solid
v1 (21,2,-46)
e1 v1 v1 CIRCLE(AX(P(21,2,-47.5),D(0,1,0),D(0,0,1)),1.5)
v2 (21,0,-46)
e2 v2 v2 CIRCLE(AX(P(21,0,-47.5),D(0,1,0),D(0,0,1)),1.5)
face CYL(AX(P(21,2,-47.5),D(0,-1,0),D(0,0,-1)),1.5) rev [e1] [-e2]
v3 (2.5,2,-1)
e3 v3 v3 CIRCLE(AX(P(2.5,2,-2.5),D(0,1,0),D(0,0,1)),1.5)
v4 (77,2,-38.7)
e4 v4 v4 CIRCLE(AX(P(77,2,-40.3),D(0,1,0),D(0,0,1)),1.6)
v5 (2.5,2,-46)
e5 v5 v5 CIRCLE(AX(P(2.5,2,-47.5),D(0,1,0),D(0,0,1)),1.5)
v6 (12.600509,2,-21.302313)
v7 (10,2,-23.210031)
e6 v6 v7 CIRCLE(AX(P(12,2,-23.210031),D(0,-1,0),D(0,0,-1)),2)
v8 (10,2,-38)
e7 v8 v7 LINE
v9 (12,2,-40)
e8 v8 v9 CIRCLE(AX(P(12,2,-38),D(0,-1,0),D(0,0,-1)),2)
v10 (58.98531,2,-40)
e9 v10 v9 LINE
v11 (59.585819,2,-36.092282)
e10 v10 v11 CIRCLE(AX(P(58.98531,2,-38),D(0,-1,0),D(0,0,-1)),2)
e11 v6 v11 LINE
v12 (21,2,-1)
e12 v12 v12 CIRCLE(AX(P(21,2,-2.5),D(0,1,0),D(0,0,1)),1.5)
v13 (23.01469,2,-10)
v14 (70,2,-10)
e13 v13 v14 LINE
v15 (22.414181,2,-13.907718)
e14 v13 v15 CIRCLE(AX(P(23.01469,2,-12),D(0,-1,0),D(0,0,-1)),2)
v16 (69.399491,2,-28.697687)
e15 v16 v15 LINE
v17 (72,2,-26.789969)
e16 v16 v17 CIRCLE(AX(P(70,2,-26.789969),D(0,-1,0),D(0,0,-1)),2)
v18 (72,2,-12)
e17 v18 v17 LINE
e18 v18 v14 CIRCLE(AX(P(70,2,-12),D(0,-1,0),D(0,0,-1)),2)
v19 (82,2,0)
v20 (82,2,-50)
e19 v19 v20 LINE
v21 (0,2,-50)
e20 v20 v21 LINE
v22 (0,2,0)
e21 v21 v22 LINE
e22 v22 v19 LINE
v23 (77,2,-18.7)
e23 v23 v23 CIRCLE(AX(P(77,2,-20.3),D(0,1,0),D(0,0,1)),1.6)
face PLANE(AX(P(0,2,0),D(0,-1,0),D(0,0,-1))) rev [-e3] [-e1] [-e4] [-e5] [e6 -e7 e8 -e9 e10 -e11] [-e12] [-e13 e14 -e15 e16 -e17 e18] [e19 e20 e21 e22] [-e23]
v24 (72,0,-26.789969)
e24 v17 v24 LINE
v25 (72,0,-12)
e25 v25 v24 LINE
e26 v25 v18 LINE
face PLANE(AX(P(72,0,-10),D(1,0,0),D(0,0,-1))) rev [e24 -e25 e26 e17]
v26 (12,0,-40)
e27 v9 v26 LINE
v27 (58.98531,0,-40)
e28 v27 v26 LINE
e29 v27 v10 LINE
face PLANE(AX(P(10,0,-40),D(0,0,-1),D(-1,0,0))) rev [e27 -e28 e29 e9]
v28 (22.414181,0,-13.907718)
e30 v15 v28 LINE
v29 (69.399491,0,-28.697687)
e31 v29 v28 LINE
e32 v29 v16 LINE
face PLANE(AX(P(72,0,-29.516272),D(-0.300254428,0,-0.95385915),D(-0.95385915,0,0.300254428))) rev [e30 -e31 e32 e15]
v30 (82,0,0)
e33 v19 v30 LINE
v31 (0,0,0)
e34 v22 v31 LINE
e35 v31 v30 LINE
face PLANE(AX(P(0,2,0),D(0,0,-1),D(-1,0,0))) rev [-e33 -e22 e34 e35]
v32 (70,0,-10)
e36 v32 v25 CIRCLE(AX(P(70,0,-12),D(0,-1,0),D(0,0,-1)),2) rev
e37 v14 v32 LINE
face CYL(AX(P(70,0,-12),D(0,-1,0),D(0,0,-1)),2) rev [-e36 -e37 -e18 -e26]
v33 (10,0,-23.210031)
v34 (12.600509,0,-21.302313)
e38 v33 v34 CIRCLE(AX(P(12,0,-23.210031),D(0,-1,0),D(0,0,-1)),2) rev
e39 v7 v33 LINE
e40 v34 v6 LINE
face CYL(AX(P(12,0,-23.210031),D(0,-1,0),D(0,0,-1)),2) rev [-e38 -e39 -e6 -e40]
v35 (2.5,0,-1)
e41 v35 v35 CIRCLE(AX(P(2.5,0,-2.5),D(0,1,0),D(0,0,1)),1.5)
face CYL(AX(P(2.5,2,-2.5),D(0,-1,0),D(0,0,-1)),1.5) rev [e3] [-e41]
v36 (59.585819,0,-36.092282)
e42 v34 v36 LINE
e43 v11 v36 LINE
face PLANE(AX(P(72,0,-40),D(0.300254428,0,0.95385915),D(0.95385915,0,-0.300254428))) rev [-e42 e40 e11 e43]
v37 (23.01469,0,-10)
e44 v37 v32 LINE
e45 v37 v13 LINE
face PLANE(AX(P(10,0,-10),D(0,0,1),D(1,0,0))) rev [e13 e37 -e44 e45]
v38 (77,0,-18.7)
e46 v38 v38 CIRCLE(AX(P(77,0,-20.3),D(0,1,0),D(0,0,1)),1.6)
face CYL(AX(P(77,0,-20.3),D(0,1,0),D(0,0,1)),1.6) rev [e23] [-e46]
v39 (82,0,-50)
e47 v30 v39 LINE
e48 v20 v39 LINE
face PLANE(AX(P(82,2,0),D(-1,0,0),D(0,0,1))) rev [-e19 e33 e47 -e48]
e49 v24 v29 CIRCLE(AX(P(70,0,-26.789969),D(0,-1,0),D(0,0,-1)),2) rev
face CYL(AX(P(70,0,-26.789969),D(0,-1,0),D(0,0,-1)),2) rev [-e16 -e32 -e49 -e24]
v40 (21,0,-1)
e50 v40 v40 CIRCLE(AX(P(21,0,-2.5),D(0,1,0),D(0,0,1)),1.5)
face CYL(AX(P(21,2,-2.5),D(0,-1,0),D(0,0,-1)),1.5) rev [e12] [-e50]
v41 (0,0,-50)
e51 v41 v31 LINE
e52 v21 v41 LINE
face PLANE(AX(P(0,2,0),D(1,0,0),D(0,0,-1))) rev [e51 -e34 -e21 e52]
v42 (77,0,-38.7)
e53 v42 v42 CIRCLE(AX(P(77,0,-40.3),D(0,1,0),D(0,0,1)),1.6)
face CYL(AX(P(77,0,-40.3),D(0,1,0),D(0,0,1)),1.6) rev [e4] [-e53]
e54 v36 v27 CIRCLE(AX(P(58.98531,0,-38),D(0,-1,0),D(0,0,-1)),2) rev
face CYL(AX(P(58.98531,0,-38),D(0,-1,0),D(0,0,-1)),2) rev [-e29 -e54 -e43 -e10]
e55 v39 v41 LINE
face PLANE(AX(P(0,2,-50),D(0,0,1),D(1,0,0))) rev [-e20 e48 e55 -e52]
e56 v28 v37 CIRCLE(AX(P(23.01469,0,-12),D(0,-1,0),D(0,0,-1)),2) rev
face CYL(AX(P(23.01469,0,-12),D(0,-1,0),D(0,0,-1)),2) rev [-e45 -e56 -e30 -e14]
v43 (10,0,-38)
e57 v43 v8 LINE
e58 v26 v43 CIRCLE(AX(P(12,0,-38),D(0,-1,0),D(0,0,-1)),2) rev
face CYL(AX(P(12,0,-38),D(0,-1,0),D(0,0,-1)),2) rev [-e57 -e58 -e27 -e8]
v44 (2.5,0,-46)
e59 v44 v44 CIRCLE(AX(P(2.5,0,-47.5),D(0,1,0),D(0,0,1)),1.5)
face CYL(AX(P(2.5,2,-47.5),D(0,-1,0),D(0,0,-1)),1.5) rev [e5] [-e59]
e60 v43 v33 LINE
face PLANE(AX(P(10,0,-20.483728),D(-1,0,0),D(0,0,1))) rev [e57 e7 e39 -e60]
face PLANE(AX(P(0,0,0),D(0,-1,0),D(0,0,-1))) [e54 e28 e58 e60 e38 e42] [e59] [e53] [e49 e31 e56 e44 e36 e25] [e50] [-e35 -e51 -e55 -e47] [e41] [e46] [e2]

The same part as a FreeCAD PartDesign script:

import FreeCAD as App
import Part
import Sketcher


def edges_at(feature, points):
    """Names of the edges that pass closest to the given points."""
    edges = feature.Shape.Edges
    near = lambda p: min(range(len(edges)), key=lambda i: edges[i].distToShape(Part.Vertex(*p))[0])
    return sorted({f"Edge{near(p) + 1}" for p in points})

doc = App.newDocument("Part")
body = doc.addObject("PartDesign::Body", "Body")

sketch1 = body.newObject("Sketcher::SketchObject", "Sketch")
sketch1.AttachmentSupport = (doc.getObject("XZ_Plane"), [""])
sketch1.MapMode = "FlatFace"
sketch1.addGeometry(Part.LineSegment(App.Vector(0, -50, 0), App.Vector(0, 0, 0)), False)
sketch1.addGeometry(Part.LineSegment(App.Vector(0, 0, 0), App.Vector(82, 0, 0)), False)
sketch1.addGeometry(Part.LineSegment(App.Vector(82, 0, 0), App.Vector(82, -50, 0)), False)
sketch1.addGeometry(Part.LineSegment(App.Vector(82, -50, 0), App.Vector(0, -50, 0)), False)
sketch1.addGeometry(Part.Circle(App.Vector(2.5, -2.5, 0), App.Vector(0, 0, 1), 1.5), False)
sketch1.addGeometry(Part.Circle(App.Vector(21, -2.5, 0), App.Vector(0, 0, 1), 1.5), False)
sketch1.addGeometry(Part.Circle(App.Vector(2.5, -47.5, 0), App.Vector(0, 0, 1), 1.5), False)
sketch1.addGeometry(Part.Circle(App.Vector(21, -47.5, 0), App.Vector(0, 0, 1), 1.5), False)
sketch1.addConstraint(Sketcher.Constraint("Coincident", 0, 2, 1, 1))
sketch1.addConstraint(Sketcher.Constraint("Coincident", 1, 2, 2, 1))
sketch1.addConstraint(Sketcher.Constraint("Coincident", 2, 2, 3, 1))
sketch1.addConstraint(Sketcher.Constraint("Coincident", 3, 2, 0, 1))
sketch1.addConstraint(Sketcher.Constraint("Vertical", 0))
sketch1.addConstraint(Sketcher.Constraint("Horizontal", 1))
sketch1.addConstraint(Sketcher.Constraint("Vertical", 2))
sketch1.addConstraint(Sketcher.Constraint("Horizontal", 3))
sketch1.addConstraint(Sketcher.Constraint("Coincident", 0, 2, -1, 1))
sketch1.addConstraint(Sketcher.Constraint("Equal", 4, 5))
sketch1.addConstraint(Sketcher.Constraint("Equal", 5, 6))
sketch1.addConstraint(Sketcher.Constraint("Equal", 6, 7))
sketch1.addConstraint(Sketcher.Constraint("Horizontal", 4, 3, 5, 3))
sketch1.addConstraint(Sketcher.Constraint("Horizontal", 6, 3, 7, 3))
sketch1.addConstraint(Sketcher.Constraint("Vertical", 4, 3, 6, 3))
sketch1.addConstraint(Sketcher.Constraint("Vertical", 5, 3, 7, 3))
sketch1.addConstraint(Sketcher.Constraint("Diameter", 4, 3.0))
sketch1.addConstraint(Sketcher.Constraint("DistanceX", 1, 1, 1, 2, 82.0))
sketch1.addConstraint(Sketcher.Constraint("DistanceY", 0, 1, 0, 2, 50.0))
sketch1.addConstraint(Sketcher.Constraint("DistanceX", -1, 1, 5, 3, 21.0))
sketch1.addConstraint(Sketcher.Constraint("DistanceY", 6, 3, 4, 3, 45.0))
sketch1.addConstraint(Sketcher.Constraint("DistanceX", -1, 1, 4, 3, 2.5))
sketch1.addConstraint(Sketcher.Constraint("DistanceY", 4, 3, -1, 1, 2.5))
pad1 = body.newObject("PartDesign::Pad", "Pad")
pad1.Profile = sketch1
pad1.Length = 2
pad1.Reversed = True

sketch2 = body.newObject("Sketcher::SketchObject", "Sketch001")
sketch2.AttachmentSupport = (doc.getObject("XZ_Plane"), [""])
sketch2.MapMode = "FlatFace"
sketch2.AttachmentOffset = App.Placement(App.Vector(0, 0, -2), App.Rotation())
sketch2.addGeometry(Part.Circle(App.Vector(77, -20.3, 0), App.Vector(0, 0, 1), 1.6), False)
sketch2.addGeometry(Part.Circle(App.Vector(77, -40.3, 0), App.Vector(0, 0, 1), 1.6), False)
sketch2.addConstraint(Sketcher.Constraint("Equal", 0, 1))
sketch2.addConstraint(Sketcher.Constraint("Vertical", 0, 3, 1, 3))
sketch2.addConstraint(Sketcher.Constraint("Diameter", 0, 3.2))
sketch2.addConstraint(Sketcher.Constraint("DistanceX", -1, 1, 0, 3, 77.0))
sketch2.addConstraint(Sketcher.Constraint("DistanceY", 1, 3, 0, 3, 20.0))
sketch2.addConstraint(Sketcher.Constraint("DistanceY", 0, 3, -1, 1, 20.3))
pocket1 = body.newObject("PartDesign::Pocket", "Pocket")
pocket1.Profile = sketch2
pocket1.Length = 2
pocket1.Reversed = True

sketch3 = body.newObject("Sketcher::SketchObject", "Sketch002")
sketch3.AttachmentSupport = (doc.getObject("XZ_Plane"), [""])
sketch3.MapMode = "FlatFace"
sketch3.AttachmentOffset = App.Placement(App.Vector(0, 0, -2), App.Rotation())
sketch3.addGeometry(Part.LineSegment(App.Vector(10, -10, 0), App.Vector(72, -10, 0)), False)
sketch3.addGeometry(Part.LineSegment(App.Vector(72, -10, 0), App.Vector(72, -30, 0)), False)
sketch3.addGeometry(Part.LineSegment(App.Vector(72, -30, 0), App.Vector(10, -10, 0)), False)
sketch3.addGeometry(Part.LineSegment(App.Vector(10, -40, 0), App.Vector(10, -20, 0)), False)
sketch3.addGeometry(Part.LineSegment(App.Vector(10, -20, 0), App.Vector(72, -40, 0)), False)
sketch3.addGeometry(Part.LineSegment(App.Vector(72, -40, 0), App.Vector(10, -40, 0)), False)
sketch3.addConstraint(Sketcher.Constraint("Coincident", 0, 2, 1, 1))
sketch3.addConstraint(Sketcher.Constraint("Coincident", 1, 2, 2, 1))
sketch3.addConstraint(Sketcher.Constraint("Coincident", 2, 2, 0, 1))
sketch3.addConstraint(Sketcher.Constraint("Coincident", 3, 2, 4, 1))
sketch3.addConstraint(Sketcher.Constraint("Coincident", 4, 2, 5, 1))
sketch3.addConstraint(Sketcher.Constraint("Coincident", 5, 2, 3, 1))
sketch3.addConstraint(Sketcher.Constraint("Horizontal", 0))
sketch3.addConstraint(Sketcher.Constraint("Vertical", 1))
sketch3.addConstraint(Sketcher.Constraint("Vertical", 3))
sketch3.addConstraint(Sketcher.Constraint("Horizontal", 5))
sketch3.addConstraint(Sketcher.Constraint("Parallel", 2, 4))
sketch3.addConstraint(Sketcher.Constraint("Vertical", 2, 2, 3, 2))
sketch3.addConstraint(Sketcher.Constraint("Vertical", 1, 2, 4, 2))
sketch3.addConstraint(Sketcher.Constraint("DistanceX", 0, 1, 0, 2, 62.0))
sketch3.addConstraint(Sketcher.Constraint("DistanceX", -1, 1, 0, 2, 72.0))
sketch3.addConstraint(Sketcher.Constraint("DistanceY", 0, 2, -1, 1, 10.0))
sketch3.addConstraint(Sketcher.Constraint("DistanceY", 4, 2, -1, 1, 40.0))
sketch3.addConstraint(Sketcher.Constraint("DistanceY", 1, 2, 1, 1, 19.516272))
pocket2 = body.newObject("PartDesign::Pocket", "Pocket001")
pocket2.Profile = sketch3
pocket2.Length = 2
pocket2.Reversed = True
doc.recompute()

fillet = body.newObject("PartDesign::Fillet", "Fillet")
fillet.Base = (pocket2, edges_at(pocket2, [
    (72, 1, -40),
    (10, 1, -20.484),
    (10, 1, -40),
    (10, 1, -10),
    (72, 1, -29.516),
    (72, 1, -10),
]))
fillet.Radius = 2

doc.recompute()
